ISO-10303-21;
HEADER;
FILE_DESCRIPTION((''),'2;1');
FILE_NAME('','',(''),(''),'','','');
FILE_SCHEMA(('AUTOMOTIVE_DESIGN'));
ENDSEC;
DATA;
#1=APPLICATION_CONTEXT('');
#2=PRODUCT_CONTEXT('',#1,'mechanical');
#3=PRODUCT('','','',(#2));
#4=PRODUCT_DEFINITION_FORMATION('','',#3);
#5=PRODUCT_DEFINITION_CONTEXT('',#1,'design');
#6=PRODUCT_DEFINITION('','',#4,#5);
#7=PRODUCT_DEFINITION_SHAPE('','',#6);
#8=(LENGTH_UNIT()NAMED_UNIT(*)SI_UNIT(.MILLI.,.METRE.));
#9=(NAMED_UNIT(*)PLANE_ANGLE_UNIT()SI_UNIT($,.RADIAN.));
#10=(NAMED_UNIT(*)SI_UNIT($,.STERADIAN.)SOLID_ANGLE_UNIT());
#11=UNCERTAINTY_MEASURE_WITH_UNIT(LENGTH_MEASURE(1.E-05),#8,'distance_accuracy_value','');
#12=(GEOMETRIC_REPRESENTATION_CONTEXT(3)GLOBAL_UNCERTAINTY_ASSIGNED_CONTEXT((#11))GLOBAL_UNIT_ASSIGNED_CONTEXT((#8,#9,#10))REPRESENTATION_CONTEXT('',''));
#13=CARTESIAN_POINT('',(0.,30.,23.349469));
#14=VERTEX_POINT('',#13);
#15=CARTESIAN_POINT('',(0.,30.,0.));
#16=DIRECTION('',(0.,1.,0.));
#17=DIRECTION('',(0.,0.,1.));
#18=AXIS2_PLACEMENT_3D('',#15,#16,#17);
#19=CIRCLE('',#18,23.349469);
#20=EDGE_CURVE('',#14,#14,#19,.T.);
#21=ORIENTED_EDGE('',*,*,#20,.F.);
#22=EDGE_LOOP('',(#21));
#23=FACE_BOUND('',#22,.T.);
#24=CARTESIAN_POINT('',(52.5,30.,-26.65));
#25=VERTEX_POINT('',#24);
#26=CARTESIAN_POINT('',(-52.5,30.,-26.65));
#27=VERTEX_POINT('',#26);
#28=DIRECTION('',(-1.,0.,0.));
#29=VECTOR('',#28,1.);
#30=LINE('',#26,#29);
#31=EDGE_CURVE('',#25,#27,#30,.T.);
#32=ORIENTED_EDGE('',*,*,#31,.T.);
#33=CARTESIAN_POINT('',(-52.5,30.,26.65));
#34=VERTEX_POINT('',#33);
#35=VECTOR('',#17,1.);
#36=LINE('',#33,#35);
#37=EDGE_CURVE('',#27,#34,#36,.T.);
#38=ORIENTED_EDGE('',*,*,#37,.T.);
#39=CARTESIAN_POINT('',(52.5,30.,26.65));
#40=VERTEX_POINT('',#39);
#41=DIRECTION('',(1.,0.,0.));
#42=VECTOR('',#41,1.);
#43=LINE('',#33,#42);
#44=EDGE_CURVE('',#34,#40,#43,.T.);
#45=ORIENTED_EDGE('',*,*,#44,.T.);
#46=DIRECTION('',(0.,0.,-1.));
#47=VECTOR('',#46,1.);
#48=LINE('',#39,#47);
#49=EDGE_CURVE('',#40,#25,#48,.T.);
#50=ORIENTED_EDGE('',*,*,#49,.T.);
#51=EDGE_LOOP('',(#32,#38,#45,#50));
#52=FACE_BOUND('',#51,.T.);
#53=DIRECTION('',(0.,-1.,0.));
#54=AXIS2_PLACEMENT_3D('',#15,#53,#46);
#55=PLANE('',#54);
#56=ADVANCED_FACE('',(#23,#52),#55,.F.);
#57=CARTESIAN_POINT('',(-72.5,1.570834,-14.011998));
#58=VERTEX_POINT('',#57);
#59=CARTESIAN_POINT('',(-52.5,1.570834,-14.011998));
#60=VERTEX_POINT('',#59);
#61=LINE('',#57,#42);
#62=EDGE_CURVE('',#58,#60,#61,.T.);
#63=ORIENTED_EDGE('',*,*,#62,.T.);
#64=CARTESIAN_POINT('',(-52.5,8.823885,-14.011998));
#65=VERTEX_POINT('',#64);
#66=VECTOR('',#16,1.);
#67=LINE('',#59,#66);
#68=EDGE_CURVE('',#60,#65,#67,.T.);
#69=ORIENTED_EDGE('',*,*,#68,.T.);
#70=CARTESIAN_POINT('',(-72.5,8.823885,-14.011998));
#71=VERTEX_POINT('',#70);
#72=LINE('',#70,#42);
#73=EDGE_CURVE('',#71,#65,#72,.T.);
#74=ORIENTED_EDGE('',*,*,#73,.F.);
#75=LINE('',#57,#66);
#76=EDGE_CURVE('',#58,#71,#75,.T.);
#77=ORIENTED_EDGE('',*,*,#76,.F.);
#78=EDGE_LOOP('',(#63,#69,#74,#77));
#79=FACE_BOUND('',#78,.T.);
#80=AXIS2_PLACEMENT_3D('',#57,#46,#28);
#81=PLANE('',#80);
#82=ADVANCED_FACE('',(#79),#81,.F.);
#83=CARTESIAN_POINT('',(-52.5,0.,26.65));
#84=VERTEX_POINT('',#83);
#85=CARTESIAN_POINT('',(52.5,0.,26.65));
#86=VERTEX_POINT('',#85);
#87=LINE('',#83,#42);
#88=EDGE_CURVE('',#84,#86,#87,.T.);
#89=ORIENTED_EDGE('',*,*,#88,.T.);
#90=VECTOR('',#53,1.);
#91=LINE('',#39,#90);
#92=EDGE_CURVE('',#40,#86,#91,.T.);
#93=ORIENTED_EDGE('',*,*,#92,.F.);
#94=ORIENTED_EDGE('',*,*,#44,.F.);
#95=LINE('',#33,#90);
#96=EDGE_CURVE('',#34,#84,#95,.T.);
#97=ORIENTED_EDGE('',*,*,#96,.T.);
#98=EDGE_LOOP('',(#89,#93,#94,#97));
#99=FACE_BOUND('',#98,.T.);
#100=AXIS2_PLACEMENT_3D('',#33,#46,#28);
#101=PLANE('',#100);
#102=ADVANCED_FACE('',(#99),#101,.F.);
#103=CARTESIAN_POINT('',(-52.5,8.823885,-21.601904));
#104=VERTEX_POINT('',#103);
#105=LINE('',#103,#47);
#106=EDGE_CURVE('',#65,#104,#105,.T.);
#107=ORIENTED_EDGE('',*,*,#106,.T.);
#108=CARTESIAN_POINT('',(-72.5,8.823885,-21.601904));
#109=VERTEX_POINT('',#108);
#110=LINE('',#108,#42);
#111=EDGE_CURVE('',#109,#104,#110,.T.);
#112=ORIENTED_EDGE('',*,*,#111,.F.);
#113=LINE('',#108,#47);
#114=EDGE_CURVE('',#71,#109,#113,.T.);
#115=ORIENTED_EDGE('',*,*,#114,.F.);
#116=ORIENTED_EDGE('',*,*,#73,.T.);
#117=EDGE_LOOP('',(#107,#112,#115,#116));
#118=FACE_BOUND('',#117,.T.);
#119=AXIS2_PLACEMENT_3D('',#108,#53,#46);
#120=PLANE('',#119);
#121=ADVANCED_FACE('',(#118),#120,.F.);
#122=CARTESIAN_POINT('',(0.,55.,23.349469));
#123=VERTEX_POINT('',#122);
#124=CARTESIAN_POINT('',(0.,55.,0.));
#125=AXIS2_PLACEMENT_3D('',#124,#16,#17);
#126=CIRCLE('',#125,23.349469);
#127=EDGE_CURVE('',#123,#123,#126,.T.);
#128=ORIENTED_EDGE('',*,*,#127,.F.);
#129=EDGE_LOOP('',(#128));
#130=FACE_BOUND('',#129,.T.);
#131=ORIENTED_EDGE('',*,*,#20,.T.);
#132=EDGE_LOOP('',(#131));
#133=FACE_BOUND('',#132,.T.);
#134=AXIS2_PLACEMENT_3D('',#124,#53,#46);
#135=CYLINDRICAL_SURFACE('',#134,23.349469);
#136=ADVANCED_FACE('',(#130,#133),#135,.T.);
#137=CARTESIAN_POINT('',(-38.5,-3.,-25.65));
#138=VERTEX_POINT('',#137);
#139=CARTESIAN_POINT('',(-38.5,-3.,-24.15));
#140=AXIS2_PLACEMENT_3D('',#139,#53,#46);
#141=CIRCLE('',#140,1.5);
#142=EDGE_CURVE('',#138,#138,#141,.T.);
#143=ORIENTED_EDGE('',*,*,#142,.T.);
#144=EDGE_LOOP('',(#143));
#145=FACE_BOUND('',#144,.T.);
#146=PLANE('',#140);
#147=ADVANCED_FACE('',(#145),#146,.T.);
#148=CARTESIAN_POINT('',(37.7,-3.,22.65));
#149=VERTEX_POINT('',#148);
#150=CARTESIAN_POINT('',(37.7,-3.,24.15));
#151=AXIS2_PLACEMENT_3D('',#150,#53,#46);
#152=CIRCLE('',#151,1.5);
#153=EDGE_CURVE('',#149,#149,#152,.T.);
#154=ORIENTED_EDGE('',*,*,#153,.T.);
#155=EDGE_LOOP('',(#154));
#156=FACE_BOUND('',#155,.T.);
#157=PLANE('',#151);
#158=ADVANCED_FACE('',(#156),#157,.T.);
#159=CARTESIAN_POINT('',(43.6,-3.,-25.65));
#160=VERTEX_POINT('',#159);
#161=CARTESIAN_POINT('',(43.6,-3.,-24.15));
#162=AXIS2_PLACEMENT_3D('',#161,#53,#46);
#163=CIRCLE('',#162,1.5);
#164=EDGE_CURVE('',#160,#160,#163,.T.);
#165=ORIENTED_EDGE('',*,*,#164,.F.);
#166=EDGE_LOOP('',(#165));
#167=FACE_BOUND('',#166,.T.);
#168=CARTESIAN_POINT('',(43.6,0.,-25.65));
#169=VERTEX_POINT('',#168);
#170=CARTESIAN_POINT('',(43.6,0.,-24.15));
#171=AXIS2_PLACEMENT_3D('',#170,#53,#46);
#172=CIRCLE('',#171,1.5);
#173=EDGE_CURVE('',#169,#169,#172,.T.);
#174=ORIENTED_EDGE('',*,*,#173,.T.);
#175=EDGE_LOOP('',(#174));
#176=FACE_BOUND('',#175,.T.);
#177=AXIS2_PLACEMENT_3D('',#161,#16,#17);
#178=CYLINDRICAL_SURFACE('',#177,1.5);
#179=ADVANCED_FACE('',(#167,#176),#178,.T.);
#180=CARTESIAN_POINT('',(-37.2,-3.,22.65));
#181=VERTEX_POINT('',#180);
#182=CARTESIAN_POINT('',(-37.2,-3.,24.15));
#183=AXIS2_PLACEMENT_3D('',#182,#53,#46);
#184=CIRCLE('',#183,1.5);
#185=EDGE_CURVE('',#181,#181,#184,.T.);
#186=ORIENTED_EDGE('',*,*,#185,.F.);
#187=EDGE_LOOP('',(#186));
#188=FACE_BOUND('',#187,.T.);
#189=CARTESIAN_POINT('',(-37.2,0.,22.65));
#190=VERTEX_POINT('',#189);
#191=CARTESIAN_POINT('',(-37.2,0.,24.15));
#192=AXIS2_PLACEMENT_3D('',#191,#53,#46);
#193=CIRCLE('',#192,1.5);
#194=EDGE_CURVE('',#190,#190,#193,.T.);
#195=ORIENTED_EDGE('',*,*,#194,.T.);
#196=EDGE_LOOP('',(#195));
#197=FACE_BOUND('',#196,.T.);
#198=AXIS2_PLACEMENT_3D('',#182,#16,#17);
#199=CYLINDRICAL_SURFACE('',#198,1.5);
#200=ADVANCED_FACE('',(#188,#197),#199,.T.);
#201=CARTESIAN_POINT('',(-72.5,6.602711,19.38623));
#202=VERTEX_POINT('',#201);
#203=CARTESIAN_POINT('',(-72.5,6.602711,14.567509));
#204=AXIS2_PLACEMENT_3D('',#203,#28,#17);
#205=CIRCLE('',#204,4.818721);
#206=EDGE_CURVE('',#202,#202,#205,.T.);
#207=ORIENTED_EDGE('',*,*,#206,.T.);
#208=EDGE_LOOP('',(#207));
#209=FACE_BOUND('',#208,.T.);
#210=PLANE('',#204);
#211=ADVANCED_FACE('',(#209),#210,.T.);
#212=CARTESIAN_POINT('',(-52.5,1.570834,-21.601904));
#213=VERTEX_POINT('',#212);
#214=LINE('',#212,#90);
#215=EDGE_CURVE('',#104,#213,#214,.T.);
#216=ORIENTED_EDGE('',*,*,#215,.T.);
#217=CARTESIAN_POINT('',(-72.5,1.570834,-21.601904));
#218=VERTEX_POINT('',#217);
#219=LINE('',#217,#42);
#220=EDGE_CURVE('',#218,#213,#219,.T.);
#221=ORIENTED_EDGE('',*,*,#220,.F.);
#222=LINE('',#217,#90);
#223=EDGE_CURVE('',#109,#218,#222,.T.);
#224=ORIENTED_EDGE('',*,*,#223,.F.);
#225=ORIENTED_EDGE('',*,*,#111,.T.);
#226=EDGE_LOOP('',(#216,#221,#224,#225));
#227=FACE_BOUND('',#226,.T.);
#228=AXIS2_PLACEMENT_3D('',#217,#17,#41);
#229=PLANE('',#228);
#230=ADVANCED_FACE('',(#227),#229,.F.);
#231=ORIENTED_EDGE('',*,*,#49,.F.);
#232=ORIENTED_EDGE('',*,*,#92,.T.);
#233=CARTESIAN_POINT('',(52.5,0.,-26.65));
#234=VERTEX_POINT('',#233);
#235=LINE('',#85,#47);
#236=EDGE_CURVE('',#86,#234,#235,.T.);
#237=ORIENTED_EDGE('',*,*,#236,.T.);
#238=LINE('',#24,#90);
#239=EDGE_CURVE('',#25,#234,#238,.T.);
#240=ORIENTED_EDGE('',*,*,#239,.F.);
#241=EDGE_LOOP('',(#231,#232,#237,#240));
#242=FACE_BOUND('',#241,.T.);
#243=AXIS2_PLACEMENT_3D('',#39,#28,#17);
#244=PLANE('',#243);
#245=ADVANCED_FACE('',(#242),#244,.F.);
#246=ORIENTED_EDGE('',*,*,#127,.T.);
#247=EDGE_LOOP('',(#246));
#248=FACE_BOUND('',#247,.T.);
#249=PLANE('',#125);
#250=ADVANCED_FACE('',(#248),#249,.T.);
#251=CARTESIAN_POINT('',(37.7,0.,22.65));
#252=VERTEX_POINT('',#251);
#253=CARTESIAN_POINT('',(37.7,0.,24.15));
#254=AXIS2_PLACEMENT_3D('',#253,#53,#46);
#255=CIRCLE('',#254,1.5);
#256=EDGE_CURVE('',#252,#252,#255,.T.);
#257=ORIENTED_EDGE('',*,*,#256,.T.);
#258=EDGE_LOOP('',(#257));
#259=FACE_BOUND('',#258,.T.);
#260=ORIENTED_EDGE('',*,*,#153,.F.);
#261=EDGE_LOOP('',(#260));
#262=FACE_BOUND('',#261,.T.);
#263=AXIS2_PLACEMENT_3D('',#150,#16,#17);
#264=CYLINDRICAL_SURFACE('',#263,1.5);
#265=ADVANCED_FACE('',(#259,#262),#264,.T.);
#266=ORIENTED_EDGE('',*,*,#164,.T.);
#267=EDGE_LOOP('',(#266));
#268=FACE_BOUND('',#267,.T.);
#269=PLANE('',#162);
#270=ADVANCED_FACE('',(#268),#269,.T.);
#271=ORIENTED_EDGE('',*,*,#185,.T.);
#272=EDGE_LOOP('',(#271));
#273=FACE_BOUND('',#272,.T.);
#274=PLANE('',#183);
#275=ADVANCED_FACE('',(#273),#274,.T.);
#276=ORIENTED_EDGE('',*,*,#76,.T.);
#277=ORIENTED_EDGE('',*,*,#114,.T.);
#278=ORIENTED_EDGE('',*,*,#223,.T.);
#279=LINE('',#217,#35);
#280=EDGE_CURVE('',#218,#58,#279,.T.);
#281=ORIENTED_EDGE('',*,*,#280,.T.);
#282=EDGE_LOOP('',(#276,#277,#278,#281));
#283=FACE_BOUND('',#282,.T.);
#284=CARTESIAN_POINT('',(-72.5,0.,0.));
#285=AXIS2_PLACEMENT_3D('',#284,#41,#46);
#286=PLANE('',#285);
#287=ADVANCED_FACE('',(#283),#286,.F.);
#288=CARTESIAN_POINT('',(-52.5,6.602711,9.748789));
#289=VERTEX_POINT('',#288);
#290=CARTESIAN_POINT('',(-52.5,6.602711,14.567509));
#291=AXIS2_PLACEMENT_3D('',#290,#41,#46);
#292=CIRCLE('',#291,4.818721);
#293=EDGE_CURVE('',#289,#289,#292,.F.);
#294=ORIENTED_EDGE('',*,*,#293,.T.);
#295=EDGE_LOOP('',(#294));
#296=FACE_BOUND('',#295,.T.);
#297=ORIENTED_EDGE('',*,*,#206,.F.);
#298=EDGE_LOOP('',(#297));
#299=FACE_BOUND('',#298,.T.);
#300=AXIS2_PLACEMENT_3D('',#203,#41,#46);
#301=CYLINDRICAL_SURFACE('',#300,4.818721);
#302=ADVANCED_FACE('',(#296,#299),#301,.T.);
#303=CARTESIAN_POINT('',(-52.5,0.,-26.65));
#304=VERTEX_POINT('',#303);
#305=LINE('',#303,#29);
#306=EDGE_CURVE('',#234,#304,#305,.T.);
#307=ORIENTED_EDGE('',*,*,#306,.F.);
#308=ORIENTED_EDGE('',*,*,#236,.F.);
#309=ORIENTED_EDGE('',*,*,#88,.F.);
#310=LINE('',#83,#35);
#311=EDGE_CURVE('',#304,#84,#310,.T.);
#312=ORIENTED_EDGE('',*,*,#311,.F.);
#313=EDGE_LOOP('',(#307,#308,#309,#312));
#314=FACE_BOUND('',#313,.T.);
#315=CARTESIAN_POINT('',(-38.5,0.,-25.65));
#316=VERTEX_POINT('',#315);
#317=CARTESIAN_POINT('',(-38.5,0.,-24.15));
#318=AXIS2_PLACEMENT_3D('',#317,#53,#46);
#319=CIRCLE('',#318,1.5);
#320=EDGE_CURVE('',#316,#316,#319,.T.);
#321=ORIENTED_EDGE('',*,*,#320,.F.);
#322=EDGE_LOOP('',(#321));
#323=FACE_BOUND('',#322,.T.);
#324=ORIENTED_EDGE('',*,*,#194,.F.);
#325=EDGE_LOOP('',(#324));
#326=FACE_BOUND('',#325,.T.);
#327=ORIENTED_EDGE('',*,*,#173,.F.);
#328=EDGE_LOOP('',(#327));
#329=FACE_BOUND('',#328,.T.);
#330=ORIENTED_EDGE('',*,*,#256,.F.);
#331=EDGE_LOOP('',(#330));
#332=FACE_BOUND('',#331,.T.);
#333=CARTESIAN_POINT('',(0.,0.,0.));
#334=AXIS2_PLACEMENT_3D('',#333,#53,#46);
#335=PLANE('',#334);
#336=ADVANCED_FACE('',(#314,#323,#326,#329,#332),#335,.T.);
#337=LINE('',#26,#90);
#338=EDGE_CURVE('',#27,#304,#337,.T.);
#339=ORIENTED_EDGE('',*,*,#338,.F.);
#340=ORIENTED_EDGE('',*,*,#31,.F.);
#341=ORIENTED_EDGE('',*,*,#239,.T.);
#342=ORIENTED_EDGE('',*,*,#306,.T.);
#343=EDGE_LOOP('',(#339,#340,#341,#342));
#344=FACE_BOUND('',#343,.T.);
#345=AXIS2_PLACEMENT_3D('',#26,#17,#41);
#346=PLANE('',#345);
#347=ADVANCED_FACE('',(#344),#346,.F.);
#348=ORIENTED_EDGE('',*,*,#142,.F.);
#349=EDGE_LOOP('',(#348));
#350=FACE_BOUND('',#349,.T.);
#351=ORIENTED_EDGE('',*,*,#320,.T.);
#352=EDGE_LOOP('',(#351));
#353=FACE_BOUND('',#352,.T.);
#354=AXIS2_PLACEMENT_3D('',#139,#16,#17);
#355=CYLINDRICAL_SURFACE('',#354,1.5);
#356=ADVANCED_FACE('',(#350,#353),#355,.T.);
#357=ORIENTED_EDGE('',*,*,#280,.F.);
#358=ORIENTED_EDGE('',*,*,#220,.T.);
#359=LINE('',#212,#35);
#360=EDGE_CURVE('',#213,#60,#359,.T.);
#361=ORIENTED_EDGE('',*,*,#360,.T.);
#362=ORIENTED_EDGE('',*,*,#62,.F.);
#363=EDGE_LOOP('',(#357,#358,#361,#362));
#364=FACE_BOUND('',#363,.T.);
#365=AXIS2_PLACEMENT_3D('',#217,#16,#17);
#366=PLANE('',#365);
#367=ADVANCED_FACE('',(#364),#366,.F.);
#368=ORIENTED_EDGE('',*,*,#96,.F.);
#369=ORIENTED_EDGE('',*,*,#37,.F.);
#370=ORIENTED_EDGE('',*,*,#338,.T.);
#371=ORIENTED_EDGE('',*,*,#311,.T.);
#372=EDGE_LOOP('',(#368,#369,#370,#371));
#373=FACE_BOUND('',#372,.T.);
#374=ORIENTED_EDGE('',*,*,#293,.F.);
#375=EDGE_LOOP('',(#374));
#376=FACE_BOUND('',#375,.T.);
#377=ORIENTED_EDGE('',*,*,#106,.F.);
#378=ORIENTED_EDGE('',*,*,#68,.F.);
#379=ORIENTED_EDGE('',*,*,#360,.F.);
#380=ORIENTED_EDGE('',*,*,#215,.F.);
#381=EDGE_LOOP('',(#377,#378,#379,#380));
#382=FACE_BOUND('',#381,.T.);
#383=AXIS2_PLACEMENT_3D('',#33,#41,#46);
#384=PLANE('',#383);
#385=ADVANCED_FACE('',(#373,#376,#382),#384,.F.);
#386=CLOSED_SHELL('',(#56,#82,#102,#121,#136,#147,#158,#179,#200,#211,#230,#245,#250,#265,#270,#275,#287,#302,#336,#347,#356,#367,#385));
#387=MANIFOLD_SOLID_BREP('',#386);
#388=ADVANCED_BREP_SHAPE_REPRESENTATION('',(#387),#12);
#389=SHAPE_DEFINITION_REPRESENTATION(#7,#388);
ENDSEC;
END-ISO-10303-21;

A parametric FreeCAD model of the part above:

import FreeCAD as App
import Part
import Sketcher

V = App.Vector

doc = App.newDocument("Part")
body = doc.addObject("PartDesign::Body", "Body")

sketch1 = body.newObject("Sketcher::SketchObject", "Sketch")
sketch1.AttachmentSupport = (doc.getObject("XZ_Plane"), [""])
sketch1.MapMode = "FlatFace"
sketch1.addGeometry(Part.LineSegment(V(-52.5, -26.65, 0), V(-52.5, 26.65, 0)), False)
sketch1.addGeometry(Part.LineSegment(V(-52.5, 26.65, 0), V(52.5, 26.65, 0)), False)
sketch1.addGeometry(Part.LineSegment(V(52.5, 26.65, 0), V(52.5, -26.65, 0)), False)
sketch1.addGeometry(Part.LineSegment(V(52.5, -26.65, 0), V(-52.5, -26.65, 0)), False)
sketch1.addConstraint(Sketcher.Constraint("Coincident", 0, 2, 1, 1))
sketch1.addConstraint(Sketcher.Constraint("Coincident", 1, 2, 2, 1))
sketch1.addConstraint(Sketcher.Constraint("Coincident", 2, 2, 3, 1))
sketch1.addConstraint(Sketcher.Constraint("Coincident", 3, 2, 0, 1))
sketch1.addConstraint(Sketcher.Constraint("Vertical", 0))
sketch1.addConstraint(Sketcher.Constraint("Horizontal", 1))
sketch1.addConstraint(Sketcher.Constraint("Vertical", 2))
sketch1.addConstraint(Sketcher.Constraint("Horizontal", 3))
sketch1.addConstraint(Sketcher.Constraint("Symmetric", 0, 2, 2, 2, -1, 1))
sketch1.addConstraint(Sketcher.Constraint("DistanceX", 1, 1, 1, 2, 105.0))
sketch1.addConstraint(Sketcher.Constraint("DistanceY", 0, 1, 0, 2, 53.3))
pad1 = body.newObject("PartDesign::Pad", "Pad")
pad1.Profile = sketch1
pad1.Length = 30
pad1.Reversed = True

sketch2 = body.newObject("Sketcher::SketchObject", "Sketch001")
sketch2.AttachmentSupport = (doc.getObject("YZ_Plane"), [""])
sketch2.MapMode = "FlatFace"
sketch2.AttachmentOffset = App.Placement(V(0, 0, -52.5), App.Rotation())
sketch2.addGeometry(Part.Circle(V(6.602711, 14.567509, 0), V(0, 0, 1), 4.818721), False)
sketch2.addGeometry(Part.LineSegment(V(8.823885, -21.601904, 0), V(1.570834, -21.601904, 0)), False)
sketch2.addGeometry(Part.LineSegment(V(1.570834, -21.601904, 0), V(1.570834, -14.011998, 0)), False)
sketch2.addGeometry(Part.LineSegment(V(1.570834, -14.011998, 0), V(8.823885, -14.011998, 0)), False)
sketch2.addGeometry(Part.LineSegment(V(8.823885, -14.011998, 0), V(8.823885, -21.601904, 0)), False)
sketch2.addConstraint(Sketcher.Constraint("Coincident", 1, 2, 2, 1))
sketch2.addConstraint(Sketcher.Constraint("Coincident", 2, 2, 3, 1))
sketch2.addConstraint(Sketcher.Constraint("Coincident", 3, 2, 4, 1))
sketch2.addConstraint(Sketcher.Constraint("Coincident", 4, 2, 1, 1))
sketch2.addConstraint(Sketcher.Constraint("Horizontal", 1))
sketch2.addConstraint(Sketcher.Constraint("Vertical", 2))
sketch2.addConstraint(Sketcher.Constraint("Horizontal", 3))
sketch2.addConstraint(Sketcher.Constraint("Vertical", 4))
sketch2.addConstraint(Sketcher.Constraint("Diameter", 0, 9.637441))
sketch2.addConstraint(Sketcher.Constraint("DistanceX", 1, 2, 1, 1, 7.253052))
sketch2.addConstraint(Sketcher.Constraint("DistanceY", 2, 1, 2, 2, 7.589906))
sketch2.addConstraint(Sketcher.Constraint("DistanceX", -1, 1, 0, 3, 6.602711))
sketch2.addConstraint(Sketcher.Constraint("DistanceY", -1, 1, 0, 3, 14.567509))
sketch2.addConstraint(Sketcher.Constraint("DistanceX", -1, 1, 1, 2, 1.570834))
sketch2.addConstraint(Sketcher.Constraint("DistanceY", 1, 2, -1, 1, 21.601904))
pad2 = body.newObject("PartDesign::Pad", "Pad001")
pad2.Profile = sketch2
pad2.Length = 20
pad2.Reversed = True

sketch3 = body.newObject("Sketcher::SketchObject", "Sketch002")
sketch3.AttachmentSupport = (doc.getObject("XZ_Plane"), [""])
sketch3.MapMode = "FlatFace"
sketch3.AttachmentOffset = App.Placement(V(0, 0, -30), App.Rotation())
sketch3.addGeometry(Part.Circle(V(0, 0, 0), V(0, 0, 1), 23.349469), False)
sketch3.addConstraint(Sketcher.Constraint("Coincident", 0, 3, -1, 1))
sketch3.addConstraint(Sketcher.Constraint("Diameter", 0, 46.698938))
pad3 = body.newObject("PartDesign::Pad", "Pad002")
pad3.Profile = sketch3
pad3.Length = 25
pad3.Reversed = True

sketch4 = body.newObject("Sketcher::SketchObject", "Sketch003")
sketch4.AttachmentSupport = (doc.getObject("XZ_Plane"), [""])
sketch4.MapMode = "FlatFace"
sketch4.addGeometry(Part.Circle(V(-37.2, 24.15, 0), V(0, 0, 1), 1.5), False)
sketch4.addGeometry(Part.Circle(V(-38.5, -24.15, 0), V(0, 0, 1), 1.5), False)
sketch4.addGeometry(Part.Circle(V(37.7, 24.15, 0), V(0, 0, 1), 1.5), False)
sketch4.addGeometry(Part.Circle(V(43.6, -24.15, 0), V(0, 0, 1), 1.5), False)
sketch4.addConstraint(Sketcher.Constraint("Equal", 0, 1))
sketch4.addConstraint(Sketcher.Constraint("Equal", 1, 2))
sketch4.addConstraint(Sketcher.Constraint("Equal", 2, 3))
sketch4.addConstraint(Sketcher.Constraint("Horizontal", 0, 3, 2, 3))
sketch4.addConstraint(Sketcher.Constraint("Horizontal", 1, 3, 3, 3))
sketch4.addConstraint(Sketcher.Constraint("Diameter", 0, 3.0))
sketch4.addConstraint(Sketcher.Constraint("DistanceX", 0, 3, -1, 1, 37.2))
sketch4.addConstraint(Sketcher.Constraint("DistanceX", 1, 3, -1, 1, 38.5))
sketch4.addConstraint(Sketcher.Constraint("DistanceX", -1, 1, 2, 3, 37.7))
sketch4.addConstraint(Sketcher.Constraint("DistanceX", -1, 1, 3, 3, 43.6))
sketch4.addConstraint(Sketcher.Constraint("DistanceY", 1, 3, 0, 3, 48.3))
sketch4.addConstraint(Sketcher.Constraint("DistanceY", -1, 1, 0, 3, 24.15))
pad4 = body.newObject("PartDesign::Pad", "Pad003")
pad4.Profile = sketch4
pad4.Length = 3

doc.recompute()
